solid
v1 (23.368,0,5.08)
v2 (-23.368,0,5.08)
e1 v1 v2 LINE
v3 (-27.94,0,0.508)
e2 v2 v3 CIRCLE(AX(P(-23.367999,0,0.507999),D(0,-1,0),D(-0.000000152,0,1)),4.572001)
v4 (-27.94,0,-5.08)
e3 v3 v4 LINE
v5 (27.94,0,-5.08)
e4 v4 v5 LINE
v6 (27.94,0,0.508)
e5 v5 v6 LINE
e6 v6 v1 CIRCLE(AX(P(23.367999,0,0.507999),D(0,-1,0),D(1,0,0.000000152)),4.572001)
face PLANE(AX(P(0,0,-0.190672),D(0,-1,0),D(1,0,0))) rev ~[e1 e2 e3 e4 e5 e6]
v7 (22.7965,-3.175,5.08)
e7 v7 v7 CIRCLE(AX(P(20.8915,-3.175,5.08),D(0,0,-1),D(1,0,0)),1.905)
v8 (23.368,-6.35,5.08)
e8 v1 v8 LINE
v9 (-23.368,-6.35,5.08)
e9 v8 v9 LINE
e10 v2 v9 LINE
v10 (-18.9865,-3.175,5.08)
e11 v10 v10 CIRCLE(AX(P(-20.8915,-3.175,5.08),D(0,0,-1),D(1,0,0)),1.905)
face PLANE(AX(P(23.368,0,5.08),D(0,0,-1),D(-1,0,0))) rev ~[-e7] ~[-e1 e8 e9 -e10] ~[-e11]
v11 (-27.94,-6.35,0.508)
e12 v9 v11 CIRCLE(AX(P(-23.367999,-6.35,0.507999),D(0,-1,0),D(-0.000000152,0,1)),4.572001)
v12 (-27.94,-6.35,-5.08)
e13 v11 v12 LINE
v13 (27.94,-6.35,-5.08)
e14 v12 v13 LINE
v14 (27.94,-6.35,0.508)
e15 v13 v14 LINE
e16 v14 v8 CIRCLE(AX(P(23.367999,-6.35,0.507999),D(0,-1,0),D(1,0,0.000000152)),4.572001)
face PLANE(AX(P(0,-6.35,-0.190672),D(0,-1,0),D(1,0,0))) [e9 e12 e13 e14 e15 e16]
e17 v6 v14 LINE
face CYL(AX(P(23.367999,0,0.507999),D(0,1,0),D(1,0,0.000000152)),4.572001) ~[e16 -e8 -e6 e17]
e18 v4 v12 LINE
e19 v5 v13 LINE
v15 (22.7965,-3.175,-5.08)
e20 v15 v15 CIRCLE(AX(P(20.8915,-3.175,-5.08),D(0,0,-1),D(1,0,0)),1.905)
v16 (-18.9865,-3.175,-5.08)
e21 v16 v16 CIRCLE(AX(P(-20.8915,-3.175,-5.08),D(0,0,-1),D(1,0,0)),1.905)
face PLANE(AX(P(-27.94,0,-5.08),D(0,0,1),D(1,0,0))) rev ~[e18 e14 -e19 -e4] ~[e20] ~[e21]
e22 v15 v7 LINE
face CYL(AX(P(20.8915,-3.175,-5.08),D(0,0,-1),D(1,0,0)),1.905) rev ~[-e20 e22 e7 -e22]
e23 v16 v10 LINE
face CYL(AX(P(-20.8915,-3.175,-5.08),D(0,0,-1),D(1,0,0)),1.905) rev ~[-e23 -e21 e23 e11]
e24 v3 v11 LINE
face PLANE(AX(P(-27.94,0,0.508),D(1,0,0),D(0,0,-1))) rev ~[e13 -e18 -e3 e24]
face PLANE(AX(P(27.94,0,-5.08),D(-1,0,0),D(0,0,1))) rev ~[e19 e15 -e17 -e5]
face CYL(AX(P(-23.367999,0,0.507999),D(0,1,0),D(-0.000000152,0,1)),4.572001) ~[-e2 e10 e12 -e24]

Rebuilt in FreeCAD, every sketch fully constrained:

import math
import FreeCAD as App
import Part
import Sketcher
from FreeCAD import Vector
Q = App.Units.Quantity

doc = App.newDocument("Part")
params = doc.addObject("Spreadsheet::Sheet", "Params")
for row, (alias, value) in enumerate([
    ("sketch1_radius", "0.18 in"),
    ("sketch1_width", "2.2 in"),
    ("sketch1_height", "0.22 in"),
    ("pad1_length", "0.25 in"),
    ("sketch2_diameter", "0.15 in"),
    ("pocket1_length", "1 in"),
], start=1):
    params.set(f"A{row}", alias)
    params.set(f"B{row}", "=" + value)
    params.setAlias(f"B{row}", alias)

body = doc.addObject("PartDesign::Body", "Body")

# Sketch on XZ plane
sketch1 = body.newObject("Sketcher::SketchObject", "Sketch")
sketch1.AttachmentSupport = (doc.getObject("XZ_Plane"), [""])
sketch1.MapMode = "FlatFace"
sketch1.addGeometry(Part.ArcOfCircle(Part.Circle(Vector(23.4, 0.5, 0), Vector(0, 0, 1), 4.6), math.radians(0), math.radians(90)), False)
sketch1.addGeometry(Part.LineSegment(Vector(23.4, 5.1, 0), Vector(-23.4, 5.1, 0)), False)
sketch1.addGeometry(Part.ArcOfCircle(Part.Circle(Vector(-23.4, 0.5, 0), Vector(0, 0, 1), 4.6), math.radians(90), math.radians(180)), False)
sketch1.addGeometry(Part.LineSegment(Vector(-27.9, 0.5, 0), Vector(-27.9, -5.1, 0)), False)
sketch1.addGeometry(Part.LineSegment(Vector(-27.9, -5.1, 0), Vector(27.9, -5.1, 0)), False)
sketch1.addGeometry(Part.LineSegment(Vector(27.9, -5.1, 0), Vector(27.9, 0.5, 0)), False)
sketch1.addConstraint(Sketcher.Constraint("Tangent", 0, 2, 1, 1))
sketch1.addConstraint(Sketcher.Constraint("Tangent", 1, 2, 2, 1))
sketch1.addConstraint(Sketcher.Constraint("Tangent", 2, 2, 3, 1))
sketch1.addConstraint(Sketcher.Constraint("Coincident", 3, 2, 4, 1))
sketch1.addConstraint(Sketcher.Constraint("Coincident", 4, 2, 5, 1))
sketch1.addConstraint(Sketcher.Constraint("Tangent", 5, 2, 0, 1))
sketch1.addConstraint(Sketcher.Constraint("Horizontal", 1))
sketch1.addConstraint(Sketcher.Constraint("Vertical", 3))
sketch1.addConstraint(Sketcher.Constraint("Horizontal", 4))
sketch1.addConstraint(Sketcher.Constraint("Vertical", 5))
sketch1.addConstraint(Sketcher.Constraint("Equal", 0, 2))
sketch1.addConstraint(Sketcher.Constraint("Radius", 0, Q("0.18 in")))
sketch1.addConstraint(Sketcher.Constraint("DistanceX", 4, 1, 4, 2, Q("2.2 in")))
sketch1.addConstraint(Sketcher.Constraint("DistanceY", 3, 2, 3, 1, Q("0.22 in")))
sketch1.addConstraint(Sketcher.Constraint("DistanceY", -1, 1, 0, 2, Q("0.2 in")))
sketch1.addConstraint(Sketcher.Constraint("DistanceX", 2, 2, -1, 1, Q("1.1 in")))
sketch1.setExpression("Constraints[11]", "Params.sketch1_radius")
sketch1.setExpression("Constraints[12]", "Params.sketch1_width")
sketch1.setExpression("Constraints[13]", "Params.sketch1_height")
pad1 = body.newObject("PartDesign::Pad", "Pad")
pad1.Profile = sketch1
pad1.setExpression("Length", "Params.pad1_length")

# Sketch on XY plane
sketch2 = body.newObject("Sketcher::SketchObject", "Sketch001")
sketch2.AttachmentSupport = (doc.getObject("XY_Plane"), [""])
sketch2.MapMode = "FlatFace"
sketch2.AttachmentOffset = App.Placement(Vector(0, 0, -0.2 * 25.4), App.Rotation())
sketch2.addGeometry(Part.Circle(Vector(20.9, -3.2, 0), Vector(0, 0, 1), 1.9), False)
sketch2.addGeometry(Part.Circle(Vector(-20.9, -3.2, 0), Vector(0, 0, 1), 1.9), False)
sketch2.addConstraint(Sketcher.Constraint("Equal", 0, 1))
sketch2.addConstraint(Sketcher.Constraint("Symmetric", 0, 3, 1, 3, -2))
sketch2.addConstraint(Sketcher.Constraint("Diameter", 0, Q("0.15 in")))
sketch2.addConstraint(Sketcher.Constraint("DistanceY", 0, 3, -1, 1, Q("0.125 in")))
sketch2.addConstraint(Sketcher.Constraint("DistanceX", 1, 3, 0, 3, Q("1.645 in")))
sketch2.setExpression("Constraints[2]", "Params.sketch2_diameter")
pocket1 = body.newObject("PartDesign::Pocket", "Pocket")
pocket1.Profile = sketch2
pocket1.setExpression("Length", "Params.pocket1_length")
pocket1.Reversed = True

doc.recompute()
